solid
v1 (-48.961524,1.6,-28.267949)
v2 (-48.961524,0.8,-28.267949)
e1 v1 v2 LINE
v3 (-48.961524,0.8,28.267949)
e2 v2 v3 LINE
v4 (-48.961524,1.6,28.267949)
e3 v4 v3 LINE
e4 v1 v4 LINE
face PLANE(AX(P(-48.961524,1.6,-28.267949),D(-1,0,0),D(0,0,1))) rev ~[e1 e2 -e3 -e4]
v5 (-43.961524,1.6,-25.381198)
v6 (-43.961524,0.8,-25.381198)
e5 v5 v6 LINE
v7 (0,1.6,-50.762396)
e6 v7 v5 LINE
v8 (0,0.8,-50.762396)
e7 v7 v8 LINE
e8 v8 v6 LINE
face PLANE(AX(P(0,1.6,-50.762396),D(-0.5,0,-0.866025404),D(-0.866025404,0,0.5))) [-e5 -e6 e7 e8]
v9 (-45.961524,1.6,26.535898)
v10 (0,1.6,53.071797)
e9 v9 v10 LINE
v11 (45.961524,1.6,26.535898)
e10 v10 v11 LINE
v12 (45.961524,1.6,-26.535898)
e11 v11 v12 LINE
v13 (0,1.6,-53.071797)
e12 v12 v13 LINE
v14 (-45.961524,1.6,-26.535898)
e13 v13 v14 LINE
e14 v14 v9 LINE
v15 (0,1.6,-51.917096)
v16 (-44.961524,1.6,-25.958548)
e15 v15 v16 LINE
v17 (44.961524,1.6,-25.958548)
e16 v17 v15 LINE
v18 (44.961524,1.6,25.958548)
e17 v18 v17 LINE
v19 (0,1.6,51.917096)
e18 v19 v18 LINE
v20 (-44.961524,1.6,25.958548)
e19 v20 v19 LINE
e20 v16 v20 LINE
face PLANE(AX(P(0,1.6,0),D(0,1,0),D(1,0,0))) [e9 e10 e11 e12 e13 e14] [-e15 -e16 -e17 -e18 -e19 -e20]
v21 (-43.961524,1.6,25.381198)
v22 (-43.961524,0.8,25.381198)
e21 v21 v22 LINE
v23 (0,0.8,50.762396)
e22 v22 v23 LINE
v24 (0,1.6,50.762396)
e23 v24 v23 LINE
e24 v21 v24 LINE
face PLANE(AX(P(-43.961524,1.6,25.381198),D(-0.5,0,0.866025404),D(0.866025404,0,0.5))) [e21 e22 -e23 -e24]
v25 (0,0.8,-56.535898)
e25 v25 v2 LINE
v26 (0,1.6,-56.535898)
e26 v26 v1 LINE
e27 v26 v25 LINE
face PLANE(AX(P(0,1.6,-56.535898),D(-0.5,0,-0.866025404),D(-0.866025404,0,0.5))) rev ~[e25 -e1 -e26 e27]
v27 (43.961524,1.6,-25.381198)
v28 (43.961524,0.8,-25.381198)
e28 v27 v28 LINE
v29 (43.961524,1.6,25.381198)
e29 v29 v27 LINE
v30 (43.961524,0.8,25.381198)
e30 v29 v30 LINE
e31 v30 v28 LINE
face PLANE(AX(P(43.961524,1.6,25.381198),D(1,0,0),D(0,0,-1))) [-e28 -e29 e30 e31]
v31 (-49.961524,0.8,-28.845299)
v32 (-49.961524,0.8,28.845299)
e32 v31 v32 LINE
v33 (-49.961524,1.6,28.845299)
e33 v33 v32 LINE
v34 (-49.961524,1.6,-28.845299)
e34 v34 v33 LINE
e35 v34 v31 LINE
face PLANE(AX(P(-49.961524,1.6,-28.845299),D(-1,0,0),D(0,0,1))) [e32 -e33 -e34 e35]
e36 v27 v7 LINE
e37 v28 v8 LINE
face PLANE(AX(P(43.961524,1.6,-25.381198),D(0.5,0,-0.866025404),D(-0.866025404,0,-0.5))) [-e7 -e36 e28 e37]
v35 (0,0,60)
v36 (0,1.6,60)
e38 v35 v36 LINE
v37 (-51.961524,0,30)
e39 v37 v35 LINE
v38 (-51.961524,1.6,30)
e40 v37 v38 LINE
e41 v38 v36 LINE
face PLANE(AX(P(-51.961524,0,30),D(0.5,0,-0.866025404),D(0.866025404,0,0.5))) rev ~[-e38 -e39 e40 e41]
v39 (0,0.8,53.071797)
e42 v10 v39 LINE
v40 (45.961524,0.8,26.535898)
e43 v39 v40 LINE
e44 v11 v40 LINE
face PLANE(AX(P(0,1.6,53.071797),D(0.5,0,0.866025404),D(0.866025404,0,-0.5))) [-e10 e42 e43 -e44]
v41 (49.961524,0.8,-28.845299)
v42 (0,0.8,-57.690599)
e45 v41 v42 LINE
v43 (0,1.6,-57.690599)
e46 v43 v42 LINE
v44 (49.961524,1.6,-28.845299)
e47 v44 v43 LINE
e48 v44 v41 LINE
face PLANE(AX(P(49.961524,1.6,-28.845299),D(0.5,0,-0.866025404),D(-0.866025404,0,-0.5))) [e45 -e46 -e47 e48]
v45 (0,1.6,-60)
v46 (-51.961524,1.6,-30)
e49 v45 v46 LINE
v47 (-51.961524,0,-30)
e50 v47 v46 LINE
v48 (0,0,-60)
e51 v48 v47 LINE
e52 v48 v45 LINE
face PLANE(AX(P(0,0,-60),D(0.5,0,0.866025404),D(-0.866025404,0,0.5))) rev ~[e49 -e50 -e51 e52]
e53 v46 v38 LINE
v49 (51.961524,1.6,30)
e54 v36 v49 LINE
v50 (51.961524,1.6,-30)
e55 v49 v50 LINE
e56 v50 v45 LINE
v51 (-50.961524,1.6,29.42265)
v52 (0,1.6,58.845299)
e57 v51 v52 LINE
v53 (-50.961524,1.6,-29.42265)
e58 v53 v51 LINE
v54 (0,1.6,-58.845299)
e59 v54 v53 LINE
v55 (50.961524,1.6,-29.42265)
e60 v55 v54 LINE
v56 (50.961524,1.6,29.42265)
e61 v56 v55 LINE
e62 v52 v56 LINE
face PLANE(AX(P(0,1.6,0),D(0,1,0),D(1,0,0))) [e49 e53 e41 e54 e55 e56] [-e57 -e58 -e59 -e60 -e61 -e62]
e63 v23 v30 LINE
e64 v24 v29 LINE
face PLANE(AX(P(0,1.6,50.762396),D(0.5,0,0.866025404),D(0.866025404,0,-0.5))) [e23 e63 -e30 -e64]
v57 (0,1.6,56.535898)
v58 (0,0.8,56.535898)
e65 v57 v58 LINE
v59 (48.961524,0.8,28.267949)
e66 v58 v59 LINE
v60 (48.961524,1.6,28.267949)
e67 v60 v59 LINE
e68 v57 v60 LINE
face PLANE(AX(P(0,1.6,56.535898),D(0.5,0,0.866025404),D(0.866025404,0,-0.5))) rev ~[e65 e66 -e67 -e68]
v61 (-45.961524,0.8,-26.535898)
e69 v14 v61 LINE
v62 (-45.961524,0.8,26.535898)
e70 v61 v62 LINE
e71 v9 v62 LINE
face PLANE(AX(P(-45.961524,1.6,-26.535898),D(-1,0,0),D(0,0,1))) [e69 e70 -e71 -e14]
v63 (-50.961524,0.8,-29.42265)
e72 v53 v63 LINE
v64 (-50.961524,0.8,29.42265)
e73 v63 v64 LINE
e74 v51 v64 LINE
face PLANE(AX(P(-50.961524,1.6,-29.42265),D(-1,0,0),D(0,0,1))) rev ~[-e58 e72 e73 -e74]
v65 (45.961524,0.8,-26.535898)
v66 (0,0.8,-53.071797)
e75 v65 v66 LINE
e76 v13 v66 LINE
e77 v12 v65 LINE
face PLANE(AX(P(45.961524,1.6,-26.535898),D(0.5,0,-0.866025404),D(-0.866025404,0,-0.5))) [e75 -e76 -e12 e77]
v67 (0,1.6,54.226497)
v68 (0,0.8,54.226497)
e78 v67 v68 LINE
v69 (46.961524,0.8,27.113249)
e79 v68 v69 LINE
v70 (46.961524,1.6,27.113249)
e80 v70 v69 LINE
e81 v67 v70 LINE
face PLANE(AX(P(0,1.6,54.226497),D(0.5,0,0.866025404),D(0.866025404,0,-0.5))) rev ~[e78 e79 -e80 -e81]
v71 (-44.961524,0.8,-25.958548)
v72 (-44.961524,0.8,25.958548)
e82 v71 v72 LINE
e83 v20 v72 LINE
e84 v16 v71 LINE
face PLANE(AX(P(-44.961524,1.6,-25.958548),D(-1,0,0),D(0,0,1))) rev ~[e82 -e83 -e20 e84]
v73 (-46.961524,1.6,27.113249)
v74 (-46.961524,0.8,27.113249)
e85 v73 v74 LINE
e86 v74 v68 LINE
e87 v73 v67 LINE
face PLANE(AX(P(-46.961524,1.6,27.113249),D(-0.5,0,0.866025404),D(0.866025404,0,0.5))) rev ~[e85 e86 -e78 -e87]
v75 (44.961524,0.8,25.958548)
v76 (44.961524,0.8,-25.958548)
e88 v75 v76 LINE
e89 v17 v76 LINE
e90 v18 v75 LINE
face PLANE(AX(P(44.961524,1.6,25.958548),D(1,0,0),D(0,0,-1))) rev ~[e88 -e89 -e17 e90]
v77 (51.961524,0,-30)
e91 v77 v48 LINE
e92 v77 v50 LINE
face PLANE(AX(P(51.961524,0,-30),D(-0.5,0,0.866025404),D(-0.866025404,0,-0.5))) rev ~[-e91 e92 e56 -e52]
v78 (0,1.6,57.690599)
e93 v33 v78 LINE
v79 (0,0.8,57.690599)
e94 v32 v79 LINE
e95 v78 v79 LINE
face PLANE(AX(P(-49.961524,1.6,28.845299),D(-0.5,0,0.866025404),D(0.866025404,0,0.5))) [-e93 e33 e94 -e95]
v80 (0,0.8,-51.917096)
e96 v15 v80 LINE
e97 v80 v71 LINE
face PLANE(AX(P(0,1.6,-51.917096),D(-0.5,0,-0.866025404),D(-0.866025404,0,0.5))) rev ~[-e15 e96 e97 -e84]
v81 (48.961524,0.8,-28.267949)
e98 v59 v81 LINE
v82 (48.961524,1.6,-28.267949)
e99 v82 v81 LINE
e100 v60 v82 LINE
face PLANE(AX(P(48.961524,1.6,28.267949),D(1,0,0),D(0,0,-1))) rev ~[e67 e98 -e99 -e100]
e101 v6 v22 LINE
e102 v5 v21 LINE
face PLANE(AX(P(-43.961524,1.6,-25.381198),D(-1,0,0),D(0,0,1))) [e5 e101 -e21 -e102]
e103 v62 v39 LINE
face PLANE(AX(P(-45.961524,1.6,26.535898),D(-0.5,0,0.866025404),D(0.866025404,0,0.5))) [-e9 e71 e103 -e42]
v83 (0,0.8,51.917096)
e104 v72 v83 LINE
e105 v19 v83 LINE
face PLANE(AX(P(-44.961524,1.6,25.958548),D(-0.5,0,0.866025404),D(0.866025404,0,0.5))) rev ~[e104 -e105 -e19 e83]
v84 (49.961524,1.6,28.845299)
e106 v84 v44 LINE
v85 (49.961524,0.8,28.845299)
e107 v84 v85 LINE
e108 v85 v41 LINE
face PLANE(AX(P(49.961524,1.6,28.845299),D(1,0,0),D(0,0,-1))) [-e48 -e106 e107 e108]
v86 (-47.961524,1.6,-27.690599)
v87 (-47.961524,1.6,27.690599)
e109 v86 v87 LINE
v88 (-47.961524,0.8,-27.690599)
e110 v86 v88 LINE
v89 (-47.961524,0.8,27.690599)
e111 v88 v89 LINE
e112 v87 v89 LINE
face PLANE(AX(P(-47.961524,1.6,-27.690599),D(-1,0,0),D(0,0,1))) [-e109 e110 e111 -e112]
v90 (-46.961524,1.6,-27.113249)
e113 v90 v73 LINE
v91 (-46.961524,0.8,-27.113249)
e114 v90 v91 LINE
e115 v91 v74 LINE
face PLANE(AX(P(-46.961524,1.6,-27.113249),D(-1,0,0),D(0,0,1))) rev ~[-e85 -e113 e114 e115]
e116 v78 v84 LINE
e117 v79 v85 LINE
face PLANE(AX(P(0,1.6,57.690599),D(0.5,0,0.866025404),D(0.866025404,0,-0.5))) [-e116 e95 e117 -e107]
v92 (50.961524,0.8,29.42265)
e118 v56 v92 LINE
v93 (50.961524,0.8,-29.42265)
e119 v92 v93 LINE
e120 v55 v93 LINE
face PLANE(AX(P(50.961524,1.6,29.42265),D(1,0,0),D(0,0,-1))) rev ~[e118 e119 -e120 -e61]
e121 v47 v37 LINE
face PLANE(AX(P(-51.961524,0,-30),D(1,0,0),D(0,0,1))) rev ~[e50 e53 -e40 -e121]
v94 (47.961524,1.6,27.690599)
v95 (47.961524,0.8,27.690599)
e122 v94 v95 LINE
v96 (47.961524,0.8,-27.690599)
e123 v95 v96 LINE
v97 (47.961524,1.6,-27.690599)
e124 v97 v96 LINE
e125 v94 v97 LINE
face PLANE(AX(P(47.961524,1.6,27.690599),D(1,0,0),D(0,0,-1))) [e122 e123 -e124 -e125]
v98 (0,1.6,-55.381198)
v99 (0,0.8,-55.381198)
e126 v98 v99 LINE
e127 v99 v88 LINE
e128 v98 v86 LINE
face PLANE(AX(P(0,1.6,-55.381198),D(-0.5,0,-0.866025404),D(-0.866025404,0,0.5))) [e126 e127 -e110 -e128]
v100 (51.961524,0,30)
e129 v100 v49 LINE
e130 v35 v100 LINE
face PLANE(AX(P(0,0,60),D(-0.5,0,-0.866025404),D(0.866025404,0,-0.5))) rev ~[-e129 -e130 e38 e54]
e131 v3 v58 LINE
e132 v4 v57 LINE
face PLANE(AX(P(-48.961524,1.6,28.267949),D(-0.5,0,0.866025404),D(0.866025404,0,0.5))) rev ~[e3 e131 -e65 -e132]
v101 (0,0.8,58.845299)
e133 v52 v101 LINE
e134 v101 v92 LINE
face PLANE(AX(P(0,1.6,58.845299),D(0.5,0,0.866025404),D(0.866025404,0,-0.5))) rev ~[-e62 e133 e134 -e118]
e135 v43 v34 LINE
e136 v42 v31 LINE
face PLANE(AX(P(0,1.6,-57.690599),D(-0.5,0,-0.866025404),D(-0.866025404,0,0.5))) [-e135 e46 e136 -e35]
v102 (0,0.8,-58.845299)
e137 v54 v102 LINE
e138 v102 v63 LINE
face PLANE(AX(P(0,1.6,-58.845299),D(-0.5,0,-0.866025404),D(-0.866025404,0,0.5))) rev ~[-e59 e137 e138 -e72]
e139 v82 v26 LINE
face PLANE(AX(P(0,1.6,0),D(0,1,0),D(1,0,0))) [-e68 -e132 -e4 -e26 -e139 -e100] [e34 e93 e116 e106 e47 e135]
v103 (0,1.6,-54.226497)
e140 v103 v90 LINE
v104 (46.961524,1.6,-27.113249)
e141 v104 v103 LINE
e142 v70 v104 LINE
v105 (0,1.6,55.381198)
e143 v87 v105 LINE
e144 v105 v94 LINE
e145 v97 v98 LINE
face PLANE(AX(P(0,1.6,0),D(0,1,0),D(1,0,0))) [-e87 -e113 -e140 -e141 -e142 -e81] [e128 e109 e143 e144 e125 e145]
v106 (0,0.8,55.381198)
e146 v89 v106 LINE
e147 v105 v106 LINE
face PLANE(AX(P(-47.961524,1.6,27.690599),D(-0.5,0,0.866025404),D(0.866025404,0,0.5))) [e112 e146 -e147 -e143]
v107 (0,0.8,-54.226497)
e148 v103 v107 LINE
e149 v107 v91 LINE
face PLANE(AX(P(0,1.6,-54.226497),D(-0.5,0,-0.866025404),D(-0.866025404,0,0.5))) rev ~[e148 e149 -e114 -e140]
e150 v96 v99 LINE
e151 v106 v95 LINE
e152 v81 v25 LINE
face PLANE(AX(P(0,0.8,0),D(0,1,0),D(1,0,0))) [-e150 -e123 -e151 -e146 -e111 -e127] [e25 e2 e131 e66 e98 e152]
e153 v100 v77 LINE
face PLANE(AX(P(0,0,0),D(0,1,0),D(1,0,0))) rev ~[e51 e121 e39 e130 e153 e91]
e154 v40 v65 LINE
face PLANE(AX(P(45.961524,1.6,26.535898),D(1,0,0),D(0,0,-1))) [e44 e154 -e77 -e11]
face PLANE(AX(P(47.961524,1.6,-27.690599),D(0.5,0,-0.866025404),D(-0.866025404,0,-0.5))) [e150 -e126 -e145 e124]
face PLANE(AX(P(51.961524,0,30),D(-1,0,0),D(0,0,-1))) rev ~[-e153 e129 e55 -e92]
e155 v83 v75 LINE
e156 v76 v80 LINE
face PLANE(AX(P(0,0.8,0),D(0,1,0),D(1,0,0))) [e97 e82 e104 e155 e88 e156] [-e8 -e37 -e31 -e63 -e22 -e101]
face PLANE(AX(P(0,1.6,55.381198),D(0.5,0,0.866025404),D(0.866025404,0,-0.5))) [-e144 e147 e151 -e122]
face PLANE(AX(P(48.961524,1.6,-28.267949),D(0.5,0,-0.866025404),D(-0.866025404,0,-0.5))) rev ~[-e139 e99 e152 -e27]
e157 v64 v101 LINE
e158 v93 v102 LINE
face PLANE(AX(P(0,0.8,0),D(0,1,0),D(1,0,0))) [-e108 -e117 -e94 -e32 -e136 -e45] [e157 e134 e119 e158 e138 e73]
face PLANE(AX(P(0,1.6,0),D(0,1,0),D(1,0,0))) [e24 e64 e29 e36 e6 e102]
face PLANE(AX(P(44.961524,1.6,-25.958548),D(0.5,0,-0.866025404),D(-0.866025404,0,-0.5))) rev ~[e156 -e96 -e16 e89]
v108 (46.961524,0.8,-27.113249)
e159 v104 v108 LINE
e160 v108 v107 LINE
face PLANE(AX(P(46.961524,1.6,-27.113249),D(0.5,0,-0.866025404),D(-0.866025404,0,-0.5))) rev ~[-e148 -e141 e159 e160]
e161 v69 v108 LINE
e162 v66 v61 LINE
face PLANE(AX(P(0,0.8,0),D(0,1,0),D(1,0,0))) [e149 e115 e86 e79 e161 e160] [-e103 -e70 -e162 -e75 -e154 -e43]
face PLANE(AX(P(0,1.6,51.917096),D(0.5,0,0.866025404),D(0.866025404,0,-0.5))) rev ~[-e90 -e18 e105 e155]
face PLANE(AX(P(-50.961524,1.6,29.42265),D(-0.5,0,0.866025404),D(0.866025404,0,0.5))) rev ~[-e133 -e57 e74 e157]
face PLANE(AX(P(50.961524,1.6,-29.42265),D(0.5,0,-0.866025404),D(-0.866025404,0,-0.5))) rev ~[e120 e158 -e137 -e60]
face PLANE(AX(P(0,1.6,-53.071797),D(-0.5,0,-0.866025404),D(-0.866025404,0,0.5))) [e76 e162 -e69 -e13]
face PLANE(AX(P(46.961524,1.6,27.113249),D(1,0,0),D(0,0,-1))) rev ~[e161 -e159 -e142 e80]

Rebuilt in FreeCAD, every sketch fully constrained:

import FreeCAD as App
import Part
import Sketcher
from FreeCAD import Vector
Q = App.Units.Quantity


def add_polygon(sketch, points):
    """Adds a closed chain of lines whose ends are joined by coincident constraints."""
    first, n = sketch.GeometryCount, len(points)
    for a, b in zip(points, points[1:] + points[:1]):
        sketch.addGeometry(Part.LineSegment(App.Vector(*a, 0), App.Vector(*b, 0)), False)
    for i in range(n):
        sketch.addConstraint(Sketcher.Constraint("Coincident", first + i, 2, first + (i + 1) % n, 1))

doc = App.newDocument("Part")
body = doc.addObject("PartDesign::Body", "Body")

# Sketch on XZ plane
sketch1 = body.newObject("Sketcher::SketchObject", "Sketch")
sketch1.AttachmentSupport = (doc.getObject("XZ_Plane"), [""])
sketch1.MapMode = "FlatFace"
add_polygon(sketch1, [(0, 60), (51.961524, 30), (51.961524, -30), (0, -60), (-51.961524, -30), (-51.961524, 30)])  # lines 0-5
sketch1.addConstraint([
    Sketcher.Constraint("Vertical", 1),
    Sketcher.Constraint("Vertical", 4),
    Sketcher.Constraint("Symmetric", 0, 2, 3, 2, -1, 1),
    Sketcher.Constraint("Symmetric", 2, 2, 5, 2, -1, 1),
    Sketcher.Constraint("PointOnObject", 2, 2, -2),
    Sketcher.Constraint("Parallel", 2, 5),
    Sketcher.Constraint("Horizontal", 1, 2, 3, 2),
    Sketcher.Constraint("DistanceY", 1, 2, 1, 1, Q("60 mm")),
    Sketcher.Constraint("Angle", 0, Q("-30 deg")),
    Sketcher.Constraint("Distance", 0, Q("60 mm")),
])
pad1 = body.newObject("PartDesign::Pad", "Pad")
pad1.Profile = sketch1
pad1.Length = 1.6
pad1.Reversed = True

# Sketch on XZ plane
sketch2 = body.newObject("Sketcher::SketchObject", "Sketch001")
sketch2.AttachmentSupport = (doc.getObject("XZ_Plane"), [""])
sketch2.MapMode = "FlatFace"
sketch2.AttachmentOffset = App.Placement(Vector(0, 0, -1.6), App.Rotation())
add_polygon(sketch2, [(0, -58.845299), (-50.961524, -29.42265), (-50.961524, 29.42265), (0, 58.845299), (50.961524, 29.42265), (50.961524, -29.42265)])  # lines 0-5
add_polygon(sketch2, [(-49.961524, 28.845299), (-49.961524, -28.845299), (0, -57.690599), (49.961524, -28.845299), (49.961524, 28.845299), (0, 57.690599)])  # lines 6-11
add_polygon(sketch2, [(0, -56.535898), (-48.961524, -28.267949), (-48.961524, 28.267949), (0, 56.535898), (48.961524, 28.267949), (48.961524, -28.267949)])  # lines 12-17
add_polygon(sketch2, [(-47.961524, 27.690599), (-47.961524, -27.690599), (0, -55.381198), (47.961524, -27.690599), (47.961524, 27.690599), (0, 55.381198)])  # lines 18-23
add_polygon(sketch2, [(0, -54.226497), (-46.961524, -27.113249), (-46.961524, 27.113249), (0, 54.226497), (46.961524, 27.113249), (46.961524, -27.113249)])  # lines 24-29
add_polygon(sketch2, [(-45.961524, 26.535898), (-45.961524, -26.535898), (0, -53.071797), (45.961524, -26.535898), (45.961524, 26.535898), (0, 53.071797)])  # lines 30-35
add_polygon(sketch2, [(0, -51.917096), (-44.961524, -25.958548), (-44.961524, 25.958548), (0, 51.917096), (44.961524, 25.958548), (44.961524, -25.958548)])  # lines 36-41
add_polygon(sketch2, [(-43.961524, 25.381198), (-43.961524, -25.381198), (0, -50.762396), (43.961524, -25.381198), (43.961524, 25.381198), (0, 50.762396)])  # lines 42-47
sketch2.addConstraint([
    Sketcher.Constraint("Vertical", 1),
    Sketcher.Constraint("Vertical", 4),
    Sketcher.Constraint("Vertical", 6),
    Sketcher.Constraint("Vertical", 9),
    Sketcher.Constraint("Vertical", 13),
    Sketcher.Constraint("Vertical", 16),
    Sketcher.Constraint("Vertical", 18),
    Sketcher.Constraint("Vertical", 21),
    Sketcher.Constraint("Vertical", 25),
    Sketcher.Constraint("Vertical", 28),
    Sketcher.Constraint("Vertical", 30),
    Sketcher.Constraint("Vertical", 33),
    Sketcher.Constraint("Vertical", 37),
    Sketcher.Constraint("Vertical", 40),
    Sketcher.Constraint("Vertical", 42),
    Sketcher.Constraint("Vertical", 45),
    Sketcher.Constraint("Symmetric", 0, 2, 3, 2, -1, 1),
    Sketcher.Constraint("Symmetric", 2, 2, 5, 2, -1, 1),
    Sketcher.Constraint("Symmetric", 6, 2, 9, 2, -1, 1),
    Sketcher.Constraint("Symmetric", 7, 2, 10, 2, -1, 1),
    Sketcher.Constraint("Symmetric", 12, 2, 15, 2, -1, 1),
    Sketcher.Constraint("Symmetric", 14, 2, 17, 2, -1, 1),
    Sketcher.Constraint("Symmetric", 18, 2, 21, 2, -1, 1),
    Sketcher.Constraint("Symmetric", 19, 2, 22, 2, -1, 1),
    Sketcher.Constraint("Symmetric", 24, 2, 27, 2, -1, 1),
    Sketcher.Constraint("Symmetric", 26, 2, 29, 2, -1, 1),
    Sketcher.Constraint("Symmetric", 30, 2, 33, 2, -1, 1),
    Sketcher.Constraint("Symmetric", 31, 2, 34, 2, -1, 1),
    Sketcher.Constraint("Symmetric", 36, 2, 39, 2, -1, 1),
    Sketcher.Constraint("Symmetric", 38, 2, 41, 2, -1, 1),
    Sketcher.Constraint("Symmetric", 42, 2, 45, 2, -1, 1),
    Sketcher.Constraint("Symmetric", 43, 2, 46, 2, -1, 1),
    Sketcher.Constraint("PointOnObject", 2, 2, -2),
    Sketcher.Constraint("PointOnObject", 7, 2, -2),
    Sketcher.Constraint("PointOnObject", 14, 2, -2),
    Sketcher.Constraint("PointOnObject", 19, 2, -2),
    Sketcher.Constraint("PointOnObject", 26, 2, -2),
    Sketcher.Constraint("PointOnObject", 31, 2, -2),
    Sketcher.Constraint("PointOnObject", 38, 2, -2),
    Sketcher.Constraint("PointOnObject", 43, 2, -2),
    Sketcher.Constraint("Parallel", 2, 5),
    Sketcher.Constraint("Parallel", 3, 7),
    Sketcher.Constraint("Parallel", 5, 8),
    Sketcher.Constraint("Parallel", 8, 11),
    Sketcher.Constraint("Parallel", 10, 12),
    Sketcher.Constraint("Parallel", 11, 14),
    Sketcher.Constraint("Parallel", 14, 17),
    Sketcher.Constraint("Parallel", 15, 19),
    Sketcher.Constraint("Parallel", 17, 20),
    Sketcher.Constraint("Parallel", 20, 23),
    Sketcher.Constraint("Parallel", 22, 24),
    Sketcher.Constraint("Parallel", 23, 26),
    Sketcher.Constraint("Parallel", 26, 29),
    Sketcher.Constraint("Parallel", 27, 31),
    Sketcher.Constraint("Parallel", 29, 32),
    Sketcher.Constraint("Parallel", 32, 35),
    Sketcher.Constraint("Parallel", 34, 36),
    Sketcher.Constraint("Parallel", 35, 38),
    Sketcher.Constraint("Parallel", 38, 41),
    Sketcher.Constraint("Parallel", 39, 43),
    Sketcher.Constraint("Parallel", 41, 44),
    Sketcher.Constraint("Parallel", 44, 47),
    Sketcher.Constraint("Horizontal", 1, 2, 3, 2),
    Sketcher.Constraint("Angle", 0, Q("150 deg")),
    Sketcher.Constraint("DistanceX", 0, 2, 6, 2, Q("1 mm")),
    Sketcher.Constraint("DistanceY", 5, 2, 6, 2, Q("30 mm")),
    Sketcher.Constraint("DistanceX", 6, 2, 12, 2, Q("1 mm")),
    Sketcher.Constraint("DistanceX", 12, 2, 18, 2, Q("1 mm")),
    Sketcher.Constraint("DistanceX", 18, 2, 24, 2, Q("1 mm")),
    Sketcher.Constraint("DistanceX", 24, 2, 30, 2, Q("1 mm")),
    Sketcher.Constraint("DistanceX", 30, 2, 36, 2, Q("1 mm")),
    Sketcher.Constraint("DistanceX", 36, 2, 42, 2, Q("1 mm")),
    Sketcher.Constraint("DistanceY", 1, 1, 1, 2, Q("58.845299 mm")),
    Sketcher.Constraint("DistanceY", 6, 2, 6, 1, Q("57.690599 mm")),
    Sketcher.Constraint("DistanceY", 13, 1, 13, 2, Q("56.535898 mm")),
    Sketcher.Constraint("DistanceY", 18, 2, -1, 1, Q("27.690599 mm")),
    Sketcher.Constraint("DistanceY", 30, 2, -1, 1, Q("26.535898 mm")),
    Sketcher.Constraint("DistanceY", 12, 2, 24, 2, Q("1.154701 mm")),
    Sketcher.Constraint("DistanceY", 24, 2, 36, 2, Q("1.154701 mm")),
    Sketcher.Constraint("DistanceY", 30, 2, 42, 2, Q("1.154701 mm")),
])
pocket1 = body.newObject("PartDesign::Pocket", "Pocket")
pocket1.Profile = sketch2
pocket1.Length = 0.8
pocket1.Reversed = True

doc.recompute()
